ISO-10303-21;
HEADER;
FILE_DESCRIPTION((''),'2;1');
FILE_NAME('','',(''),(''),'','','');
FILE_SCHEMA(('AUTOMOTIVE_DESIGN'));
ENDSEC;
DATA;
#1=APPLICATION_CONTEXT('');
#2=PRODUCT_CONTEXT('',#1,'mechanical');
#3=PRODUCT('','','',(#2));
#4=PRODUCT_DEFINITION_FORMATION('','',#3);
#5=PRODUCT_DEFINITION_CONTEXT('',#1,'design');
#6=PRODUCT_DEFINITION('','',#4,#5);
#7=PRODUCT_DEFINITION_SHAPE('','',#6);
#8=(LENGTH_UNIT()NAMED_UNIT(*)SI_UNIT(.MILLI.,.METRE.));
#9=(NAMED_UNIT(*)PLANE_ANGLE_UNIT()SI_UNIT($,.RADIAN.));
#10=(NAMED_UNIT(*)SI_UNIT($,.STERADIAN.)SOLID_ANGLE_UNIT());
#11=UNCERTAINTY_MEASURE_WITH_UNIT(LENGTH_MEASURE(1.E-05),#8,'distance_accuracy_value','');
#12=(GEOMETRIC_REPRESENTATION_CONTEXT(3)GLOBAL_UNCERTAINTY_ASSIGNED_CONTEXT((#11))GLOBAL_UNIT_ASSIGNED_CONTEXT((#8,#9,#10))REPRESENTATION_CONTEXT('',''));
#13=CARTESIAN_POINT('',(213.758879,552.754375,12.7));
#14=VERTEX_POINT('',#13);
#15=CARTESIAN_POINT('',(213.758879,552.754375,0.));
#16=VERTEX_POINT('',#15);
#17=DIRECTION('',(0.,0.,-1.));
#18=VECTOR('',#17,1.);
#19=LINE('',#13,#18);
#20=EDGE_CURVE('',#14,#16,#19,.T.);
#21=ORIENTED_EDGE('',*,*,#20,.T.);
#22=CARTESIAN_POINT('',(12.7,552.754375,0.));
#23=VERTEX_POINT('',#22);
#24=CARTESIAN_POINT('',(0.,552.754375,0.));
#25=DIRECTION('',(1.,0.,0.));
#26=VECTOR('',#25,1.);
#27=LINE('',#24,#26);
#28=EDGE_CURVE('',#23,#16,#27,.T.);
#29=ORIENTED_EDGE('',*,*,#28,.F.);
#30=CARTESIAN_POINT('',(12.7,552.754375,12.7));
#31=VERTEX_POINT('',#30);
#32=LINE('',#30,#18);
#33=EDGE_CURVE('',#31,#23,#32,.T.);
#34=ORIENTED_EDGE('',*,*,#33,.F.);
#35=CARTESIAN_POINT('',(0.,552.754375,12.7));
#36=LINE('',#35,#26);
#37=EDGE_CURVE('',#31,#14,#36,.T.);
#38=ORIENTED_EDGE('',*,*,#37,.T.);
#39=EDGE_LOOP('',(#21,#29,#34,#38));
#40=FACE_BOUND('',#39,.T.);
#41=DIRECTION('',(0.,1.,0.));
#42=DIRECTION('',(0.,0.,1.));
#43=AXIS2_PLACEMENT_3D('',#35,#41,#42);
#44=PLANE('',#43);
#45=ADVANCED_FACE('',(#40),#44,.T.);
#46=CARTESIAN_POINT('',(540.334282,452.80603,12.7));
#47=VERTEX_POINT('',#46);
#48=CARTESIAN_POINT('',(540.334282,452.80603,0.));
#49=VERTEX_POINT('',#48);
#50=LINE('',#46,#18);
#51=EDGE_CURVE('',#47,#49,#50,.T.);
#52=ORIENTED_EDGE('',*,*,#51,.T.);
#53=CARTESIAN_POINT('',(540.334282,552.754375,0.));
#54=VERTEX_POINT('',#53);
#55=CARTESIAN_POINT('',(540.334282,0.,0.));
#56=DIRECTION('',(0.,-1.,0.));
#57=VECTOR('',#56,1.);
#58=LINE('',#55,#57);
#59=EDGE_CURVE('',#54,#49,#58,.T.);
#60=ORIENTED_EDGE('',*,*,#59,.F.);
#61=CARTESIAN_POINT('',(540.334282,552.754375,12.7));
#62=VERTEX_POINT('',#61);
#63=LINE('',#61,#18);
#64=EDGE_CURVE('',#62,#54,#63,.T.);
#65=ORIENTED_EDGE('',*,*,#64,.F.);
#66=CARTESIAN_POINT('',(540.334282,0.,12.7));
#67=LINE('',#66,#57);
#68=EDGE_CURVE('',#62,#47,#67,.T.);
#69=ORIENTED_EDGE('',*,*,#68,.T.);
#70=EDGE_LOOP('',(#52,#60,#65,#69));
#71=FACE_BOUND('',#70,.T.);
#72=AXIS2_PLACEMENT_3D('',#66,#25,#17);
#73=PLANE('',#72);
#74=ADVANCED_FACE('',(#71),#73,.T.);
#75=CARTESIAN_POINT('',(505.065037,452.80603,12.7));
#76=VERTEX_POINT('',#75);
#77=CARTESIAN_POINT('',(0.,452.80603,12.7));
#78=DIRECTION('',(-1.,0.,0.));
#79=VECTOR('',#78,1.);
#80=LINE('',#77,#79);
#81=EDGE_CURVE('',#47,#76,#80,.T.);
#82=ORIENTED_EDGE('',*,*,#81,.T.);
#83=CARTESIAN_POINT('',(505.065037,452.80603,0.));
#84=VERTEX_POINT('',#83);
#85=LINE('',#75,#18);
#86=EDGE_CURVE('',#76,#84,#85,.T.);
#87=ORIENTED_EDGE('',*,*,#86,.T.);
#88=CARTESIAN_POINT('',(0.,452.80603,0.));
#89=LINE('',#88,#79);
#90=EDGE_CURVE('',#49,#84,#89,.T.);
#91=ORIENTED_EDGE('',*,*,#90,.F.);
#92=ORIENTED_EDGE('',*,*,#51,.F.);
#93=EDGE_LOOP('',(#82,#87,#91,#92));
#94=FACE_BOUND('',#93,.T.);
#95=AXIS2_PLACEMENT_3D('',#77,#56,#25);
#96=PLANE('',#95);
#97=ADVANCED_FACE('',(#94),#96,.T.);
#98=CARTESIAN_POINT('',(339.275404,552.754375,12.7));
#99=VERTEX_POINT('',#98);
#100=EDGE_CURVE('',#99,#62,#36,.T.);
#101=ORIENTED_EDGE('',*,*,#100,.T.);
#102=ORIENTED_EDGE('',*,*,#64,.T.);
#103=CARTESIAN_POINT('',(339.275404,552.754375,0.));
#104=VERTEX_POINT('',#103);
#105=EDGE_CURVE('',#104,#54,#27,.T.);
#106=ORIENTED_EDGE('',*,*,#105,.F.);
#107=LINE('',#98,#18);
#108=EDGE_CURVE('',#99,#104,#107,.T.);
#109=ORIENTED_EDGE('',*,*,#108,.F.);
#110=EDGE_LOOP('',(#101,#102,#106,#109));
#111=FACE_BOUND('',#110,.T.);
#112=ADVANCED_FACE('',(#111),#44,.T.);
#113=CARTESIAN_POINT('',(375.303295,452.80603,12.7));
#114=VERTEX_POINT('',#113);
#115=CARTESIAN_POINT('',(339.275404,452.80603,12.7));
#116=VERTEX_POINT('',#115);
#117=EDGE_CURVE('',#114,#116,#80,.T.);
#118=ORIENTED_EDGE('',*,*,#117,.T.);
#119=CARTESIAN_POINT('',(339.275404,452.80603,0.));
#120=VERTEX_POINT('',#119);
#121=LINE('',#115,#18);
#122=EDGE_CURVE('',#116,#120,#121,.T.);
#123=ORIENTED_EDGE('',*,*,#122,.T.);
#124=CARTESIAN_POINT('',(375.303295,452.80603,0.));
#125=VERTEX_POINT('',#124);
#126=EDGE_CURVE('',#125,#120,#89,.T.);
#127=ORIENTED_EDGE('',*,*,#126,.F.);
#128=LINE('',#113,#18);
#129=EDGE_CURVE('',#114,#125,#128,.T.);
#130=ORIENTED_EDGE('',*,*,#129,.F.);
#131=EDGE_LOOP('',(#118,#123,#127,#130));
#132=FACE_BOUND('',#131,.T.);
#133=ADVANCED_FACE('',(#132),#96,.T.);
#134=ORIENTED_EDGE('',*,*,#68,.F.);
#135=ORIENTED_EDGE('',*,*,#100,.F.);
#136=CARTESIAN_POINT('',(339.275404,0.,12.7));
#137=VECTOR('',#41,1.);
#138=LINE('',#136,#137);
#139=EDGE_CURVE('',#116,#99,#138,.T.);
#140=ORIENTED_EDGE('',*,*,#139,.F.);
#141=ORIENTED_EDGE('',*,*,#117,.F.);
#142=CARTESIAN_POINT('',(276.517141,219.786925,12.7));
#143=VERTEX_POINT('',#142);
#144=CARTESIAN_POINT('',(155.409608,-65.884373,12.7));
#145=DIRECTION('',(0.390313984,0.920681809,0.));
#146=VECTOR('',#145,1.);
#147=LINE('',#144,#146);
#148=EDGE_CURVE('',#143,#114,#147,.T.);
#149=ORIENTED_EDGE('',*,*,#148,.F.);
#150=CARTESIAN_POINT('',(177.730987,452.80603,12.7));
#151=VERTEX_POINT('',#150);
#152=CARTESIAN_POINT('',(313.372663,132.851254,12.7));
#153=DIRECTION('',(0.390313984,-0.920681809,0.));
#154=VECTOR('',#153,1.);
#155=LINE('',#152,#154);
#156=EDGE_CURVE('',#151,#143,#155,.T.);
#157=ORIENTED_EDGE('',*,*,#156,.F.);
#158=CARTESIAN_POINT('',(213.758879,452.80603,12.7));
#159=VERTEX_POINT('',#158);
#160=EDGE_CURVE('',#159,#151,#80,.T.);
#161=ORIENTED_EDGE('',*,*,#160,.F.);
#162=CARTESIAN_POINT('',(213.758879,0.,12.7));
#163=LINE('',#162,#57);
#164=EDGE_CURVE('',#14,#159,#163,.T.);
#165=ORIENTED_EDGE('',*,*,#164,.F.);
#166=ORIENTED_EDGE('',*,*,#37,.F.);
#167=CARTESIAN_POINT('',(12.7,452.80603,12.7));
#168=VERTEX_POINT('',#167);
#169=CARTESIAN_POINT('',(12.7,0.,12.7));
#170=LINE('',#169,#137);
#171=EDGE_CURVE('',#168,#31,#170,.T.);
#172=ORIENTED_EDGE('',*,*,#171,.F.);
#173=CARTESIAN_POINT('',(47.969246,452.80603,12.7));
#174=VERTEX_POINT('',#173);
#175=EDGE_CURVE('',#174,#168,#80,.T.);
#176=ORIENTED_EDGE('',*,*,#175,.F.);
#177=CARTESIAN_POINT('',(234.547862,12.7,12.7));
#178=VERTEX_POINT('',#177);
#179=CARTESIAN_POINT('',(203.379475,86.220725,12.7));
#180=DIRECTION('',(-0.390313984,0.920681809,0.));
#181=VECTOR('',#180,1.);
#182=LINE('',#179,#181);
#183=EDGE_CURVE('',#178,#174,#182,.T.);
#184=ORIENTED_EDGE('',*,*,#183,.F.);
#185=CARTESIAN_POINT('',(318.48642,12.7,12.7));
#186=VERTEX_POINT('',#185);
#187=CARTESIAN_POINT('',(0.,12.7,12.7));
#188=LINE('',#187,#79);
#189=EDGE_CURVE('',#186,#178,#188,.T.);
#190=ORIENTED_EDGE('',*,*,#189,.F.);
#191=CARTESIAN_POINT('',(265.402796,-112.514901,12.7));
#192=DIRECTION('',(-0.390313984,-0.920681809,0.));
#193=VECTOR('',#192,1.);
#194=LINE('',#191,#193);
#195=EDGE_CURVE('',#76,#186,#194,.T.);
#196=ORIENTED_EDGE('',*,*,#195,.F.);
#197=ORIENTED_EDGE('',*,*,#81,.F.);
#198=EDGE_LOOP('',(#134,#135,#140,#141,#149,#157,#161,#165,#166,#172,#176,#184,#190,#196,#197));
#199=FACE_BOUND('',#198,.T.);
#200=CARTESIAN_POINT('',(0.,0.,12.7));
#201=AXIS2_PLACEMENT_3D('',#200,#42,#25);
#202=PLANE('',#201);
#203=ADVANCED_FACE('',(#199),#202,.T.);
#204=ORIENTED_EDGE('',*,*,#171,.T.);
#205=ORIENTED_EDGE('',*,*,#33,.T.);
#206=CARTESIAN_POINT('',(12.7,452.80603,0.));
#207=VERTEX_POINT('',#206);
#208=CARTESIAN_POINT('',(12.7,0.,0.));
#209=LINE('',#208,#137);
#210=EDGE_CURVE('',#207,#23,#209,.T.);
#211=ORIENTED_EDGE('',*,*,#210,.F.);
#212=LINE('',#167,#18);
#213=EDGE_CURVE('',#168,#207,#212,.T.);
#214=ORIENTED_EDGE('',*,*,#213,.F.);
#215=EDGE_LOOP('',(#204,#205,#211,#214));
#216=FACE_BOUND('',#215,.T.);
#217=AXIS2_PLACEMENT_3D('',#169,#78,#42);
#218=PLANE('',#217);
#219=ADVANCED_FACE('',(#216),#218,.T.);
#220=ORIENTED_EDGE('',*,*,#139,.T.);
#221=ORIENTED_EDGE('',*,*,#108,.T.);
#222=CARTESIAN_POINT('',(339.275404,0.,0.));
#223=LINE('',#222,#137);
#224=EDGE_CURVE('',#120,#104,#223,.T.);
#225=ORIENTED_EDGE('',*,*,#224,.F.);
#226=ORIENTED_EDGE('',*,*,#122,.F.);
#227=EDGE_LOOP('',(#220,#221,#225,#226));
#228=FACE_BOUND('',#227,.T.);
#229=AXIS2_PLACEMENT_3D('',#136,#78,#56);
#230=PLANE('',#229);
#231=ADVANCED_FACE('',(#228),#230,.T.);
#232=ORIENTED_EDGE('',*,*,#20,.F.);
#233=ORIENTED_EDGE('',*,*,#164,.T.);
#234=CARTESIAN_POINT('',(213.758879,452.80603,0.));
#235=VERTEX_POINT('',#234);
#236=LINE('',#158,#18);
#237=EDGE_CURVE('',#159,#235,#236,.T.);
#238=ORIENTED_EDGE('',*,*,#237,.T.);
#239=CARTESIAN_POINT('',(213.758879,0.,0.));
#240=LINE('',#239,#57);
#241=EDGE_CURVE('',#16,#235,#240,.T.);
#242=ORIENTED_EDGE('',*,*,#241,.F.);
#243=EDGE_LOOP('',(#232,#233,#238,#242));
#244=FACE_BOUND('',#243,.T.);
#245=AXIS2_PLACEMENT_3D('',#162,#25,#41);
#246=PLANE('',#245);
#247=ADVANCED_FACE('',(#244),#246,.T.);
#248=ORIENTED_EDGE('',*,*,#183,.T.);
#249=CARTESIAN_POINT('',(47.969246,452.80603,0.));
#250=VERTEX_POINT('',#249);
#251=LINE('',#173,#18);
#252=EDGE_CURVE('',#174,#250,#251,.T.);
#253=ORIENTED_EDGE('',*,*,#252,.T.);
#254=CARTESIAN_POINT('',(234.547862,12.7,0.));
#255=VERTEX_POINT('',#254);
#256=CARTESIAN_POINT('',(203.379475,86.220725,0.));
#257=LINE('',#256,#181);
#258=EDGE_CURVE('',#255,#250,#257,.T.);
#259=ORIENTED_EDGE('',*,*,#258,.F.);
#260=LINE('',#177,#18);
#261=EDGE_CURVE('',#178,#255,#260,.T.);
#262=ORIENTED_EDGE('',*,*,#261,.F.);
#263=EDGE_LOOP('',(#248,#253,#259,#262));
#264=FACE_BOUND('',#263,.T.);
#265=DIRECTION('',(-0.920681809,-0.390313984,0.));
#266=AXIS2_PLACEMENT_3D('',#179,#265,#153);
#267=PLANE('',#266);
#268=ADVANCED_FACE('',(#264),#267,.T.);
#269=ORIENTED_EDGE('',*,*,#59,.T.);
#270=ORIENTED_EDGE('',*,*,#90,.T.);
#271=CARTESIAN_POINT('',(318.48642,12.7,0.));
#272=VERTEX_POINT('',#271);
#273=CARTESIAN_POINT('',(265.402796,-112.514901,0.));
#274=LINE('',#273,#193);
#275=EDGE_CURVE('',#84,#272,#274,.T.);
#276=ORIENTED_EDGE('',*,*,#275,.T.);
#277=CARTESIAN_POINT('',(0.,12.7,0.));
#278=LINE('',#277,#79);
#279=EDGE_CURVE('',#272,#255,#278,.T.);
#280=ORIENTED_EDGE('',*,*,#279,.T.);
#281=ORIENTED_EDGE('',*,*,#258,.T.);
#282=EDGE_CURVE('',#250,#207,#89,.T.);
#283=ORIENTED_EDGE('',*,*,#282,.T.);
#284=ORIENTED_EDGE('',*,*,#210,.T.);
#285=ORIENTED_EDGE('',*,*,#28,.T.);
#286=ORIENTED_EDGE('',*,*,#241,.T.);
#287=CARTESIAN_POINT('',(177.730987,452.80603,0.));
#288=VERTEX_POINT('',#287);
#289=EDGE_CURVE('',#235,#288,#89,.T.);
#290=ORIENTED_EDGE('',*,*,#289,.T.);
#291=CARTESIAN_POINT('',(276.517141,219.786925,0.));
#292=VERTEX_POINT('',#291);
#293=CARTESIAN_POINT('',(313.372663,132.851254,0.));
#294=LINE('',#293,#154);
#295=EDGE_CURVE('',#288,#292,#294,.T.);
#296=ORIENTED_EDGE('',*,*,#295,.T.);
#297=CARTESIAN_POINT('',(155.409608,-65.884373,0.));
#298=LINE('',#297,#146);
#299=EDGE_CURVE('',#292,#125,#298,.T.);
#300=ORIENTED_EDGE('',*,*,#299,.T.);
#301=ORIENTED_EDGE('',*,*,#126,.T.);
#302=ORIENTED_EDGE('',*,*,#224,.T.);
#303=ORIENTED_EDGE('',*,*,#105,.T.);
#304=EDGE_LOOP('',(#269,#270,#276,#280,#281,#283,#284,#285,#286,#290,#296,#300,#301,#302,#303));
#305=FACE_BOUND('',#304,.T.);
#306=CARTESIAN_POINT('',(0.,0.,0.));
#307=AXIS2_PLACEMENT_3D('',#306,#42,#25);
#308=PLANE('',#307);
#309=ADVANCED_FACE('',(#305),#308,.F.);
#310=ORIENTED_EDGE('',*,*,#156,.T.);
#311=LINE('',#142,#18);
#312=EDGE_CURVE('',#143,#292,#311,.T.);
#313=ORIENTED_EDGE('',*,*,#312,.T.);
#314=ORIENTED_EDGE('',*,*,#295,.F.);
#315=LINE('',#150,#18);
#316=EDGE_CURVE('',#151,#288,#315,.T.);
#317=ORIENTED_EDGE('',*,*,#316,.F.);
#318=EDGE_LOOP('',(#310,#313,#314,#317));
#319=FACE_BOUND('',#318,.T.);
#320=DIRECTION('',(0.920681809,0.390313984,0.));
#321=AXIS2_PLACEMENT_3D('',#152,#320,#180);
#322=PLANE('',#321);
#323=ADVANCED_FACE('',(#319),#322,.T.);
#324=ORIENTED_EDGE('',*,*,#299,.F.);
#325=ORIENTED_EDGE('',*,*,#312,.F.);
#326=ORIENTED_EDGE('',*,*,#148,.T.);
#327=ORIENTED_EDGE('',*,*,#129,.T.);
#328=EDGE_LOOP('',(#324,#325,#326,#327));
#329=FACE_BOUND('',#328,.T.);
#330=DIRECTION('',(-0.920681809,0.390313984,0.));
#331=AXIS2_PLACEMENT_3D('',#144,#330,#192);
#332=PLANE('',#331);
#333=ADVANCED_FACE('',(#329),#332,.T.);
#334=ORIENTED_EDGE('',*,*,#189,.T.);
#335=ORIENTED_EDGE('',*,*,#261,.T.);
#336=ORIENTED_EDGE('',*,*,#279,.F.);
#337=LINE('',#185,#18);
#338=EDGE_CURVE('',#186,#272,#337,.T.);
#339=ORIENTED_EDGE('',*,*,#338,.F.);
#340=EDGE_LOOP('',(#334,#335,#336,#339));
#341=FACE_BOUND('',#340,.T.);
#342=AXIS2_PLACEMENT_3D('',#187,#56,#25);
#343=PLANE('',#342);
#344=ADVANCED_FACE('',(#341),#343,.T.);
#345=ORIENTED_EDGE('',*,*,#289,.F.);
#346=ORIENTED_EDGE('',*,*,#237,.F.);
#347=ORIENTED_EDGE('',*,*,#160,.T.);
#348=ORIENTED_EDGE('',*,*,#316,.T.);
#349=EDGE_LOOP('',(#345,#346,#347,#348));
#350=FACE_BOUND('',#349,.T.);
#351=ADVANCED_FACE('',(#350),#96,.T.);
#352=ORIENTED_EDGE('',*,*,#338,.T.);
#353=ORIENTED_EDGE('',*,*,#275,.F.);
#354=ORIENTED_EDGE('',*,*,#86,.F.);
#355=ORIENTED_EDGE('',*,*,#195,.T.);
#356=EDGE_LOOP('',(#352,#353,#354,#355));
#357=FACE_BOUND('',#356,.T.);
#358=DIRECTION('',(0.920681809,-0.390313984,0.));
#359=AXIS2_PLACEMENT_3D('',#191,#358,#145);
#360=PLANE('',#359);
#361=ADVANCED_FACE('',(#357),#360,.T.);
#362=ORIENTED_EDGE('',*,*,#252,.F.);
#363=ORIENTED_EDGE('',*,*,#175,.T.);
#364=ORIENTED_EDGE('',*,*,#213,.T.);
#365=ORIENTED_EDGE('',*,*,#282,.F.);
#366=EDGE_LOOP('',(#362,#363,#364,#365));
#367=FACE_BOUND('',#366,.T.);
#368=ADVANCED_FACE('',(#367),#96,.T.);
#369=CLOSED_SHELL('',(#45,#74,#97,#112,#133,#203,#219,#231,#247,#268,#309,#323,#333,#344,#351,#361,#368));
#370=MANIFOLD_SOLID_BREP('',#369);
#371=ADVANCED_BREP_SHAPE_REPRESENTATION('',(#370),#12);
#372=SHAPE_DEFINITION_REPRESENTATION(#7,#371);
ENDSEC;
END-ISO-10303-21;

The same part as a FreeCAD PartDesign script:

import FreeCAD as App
import Part
import Sketcher
Q = App.Units.Quantity


def add_polygon(sketch, points):
    """Adds a closed chain of lines whose ends are joined by coincident constraints."""
    first, n = sketch.GeometryCount, len(points)
    for a, b in zip(points, points[1:] + points[:1]):
        sketch.addGeometry(Part.LineSegment(App.Vector(*a, 0), App.Vector(*b, 0)), False)
    for i in range(n):
        sketch.addConstraint(Sketcher.Constraint("Coincident", first + i, 2, first + (i + 1) % n, 1))

doc = App.newDocument("Part")
body = doc.addObject("PartDesign::Body", "Body")

sketch1 = body.newObject("Sketcher::SketchObject", "Sketch")
sketch1.AttachmentSupport = (doc.getObject("XY_Plane"), [""])
sketch1.MapMode = "FlatFace"
add_polygon(sketch1, [(48, 453), (235, 13), (318, 13), (505, 453), (540, 453), (540, 553), (339, 553), (339, 453), (375, 453), (277, 220), (178, 453), (214, 453), (214, 553), (13, 553), (13, 453)])
sketch1.addConstraint(Sketcher.Constraint("Horizontal", 1))
sketch1.addConstraint(Sketcher.Constraint("Horizontal", 3))
sketch1.addConstraint(Sketcher.Constraint("Vertical", 4))
sketch1.addConstraint(Sketcher.Constraint("Horizontal", 5))
sketch1.addConstraint(Sketcher.Constraint("Vertical", 6))
sketch1.addConstraint(Sketcher.Constraint("Horizontal", 7))
sketch1.addConstraint(Sketcher.Constraint("Horizontal", 10))
sketch1.addConstraint(Sketcher.Constraint("Vertical", 11))
sketch1.addConstraint(Sketcher.Constraint("Horizontal", 12))
sketch1.addConstraint(Sketcher.Constraint("Vertical", 13))
sketch1.addConstraint(Sketcher.Constraint("Horizontal", 14))
sketch1.addConstraint(Sketcher.Constraint("Parallel", 2, 8))
sketch1.addConstraint(Sketcher.Constraint("Parallel", 0, 9))
sketch1.addConstraint(Sketcher.Constraint("Horizontal", 3, 2, 6, 2))
sketch1.addConstraint(Sketcher.Constraint("Horizontal", 7, 2, 9, 2))
sketch1.addConstraint(Sketcher.Constraint("Horizontal", 5, 2, 11, 2))
sketch1.addConstraint(Sketcher.Constraint("Horizontal", 10, 2, 13, 2))
sketch1.addConstraint(Sketcher.Constraint("Equal", 7, 10))
sketch1.addConstraint(Sketcher.Constraint("Equal", 5, 12))
sketch1.addConstraint(Sketcher.Constraint("Equal", 3, 14))
sketch1.addConstraint(Sketcher.Constraint("Equal", 0, 2))
sketch1.addConstraint(Sketcher.Constraint("DistanceY", -1, 1, 0, 2, Q("0.5 in")))
sketch1.addConstraint(Sketcher.Constraint("DistanceX", -1, 1, 12, 2, Q("0.5 in")))
sketch1.addConstraint(Sketcher.Constraint("DistanceX", 1, 1, 1, 2, 83.938558))
sketch1.addConstraint(Sketcher.Constraint("DistanceX", 5, 2, 5, 1, 201.058879))
sketch1.addConstraint(Sketcher.Constraint("DistanceX", 7, 1, 7, 2, 36.027892))
sketch1.addConstraint(Sketcher.Constraint("Distance", 0, 478.021859))
sketch1.addConstraint(Sketcher.Constraint("Distance", 8, 253.094068))
sketch1.addConstraint(Sketcher.Constraint("DistanceX", 3, 1, 3, 2, 35.269246))
sketch1.addConstraint(Sketcher.Constraint("DistanceY", 4, 1, 4, 2, 99.948344))
pad1 = body.newObject("PartDesign::Pad", "Pad")
pad1.Profile = sketch1
pad1.Length = Q("0.5 in")

doc.recompute()
